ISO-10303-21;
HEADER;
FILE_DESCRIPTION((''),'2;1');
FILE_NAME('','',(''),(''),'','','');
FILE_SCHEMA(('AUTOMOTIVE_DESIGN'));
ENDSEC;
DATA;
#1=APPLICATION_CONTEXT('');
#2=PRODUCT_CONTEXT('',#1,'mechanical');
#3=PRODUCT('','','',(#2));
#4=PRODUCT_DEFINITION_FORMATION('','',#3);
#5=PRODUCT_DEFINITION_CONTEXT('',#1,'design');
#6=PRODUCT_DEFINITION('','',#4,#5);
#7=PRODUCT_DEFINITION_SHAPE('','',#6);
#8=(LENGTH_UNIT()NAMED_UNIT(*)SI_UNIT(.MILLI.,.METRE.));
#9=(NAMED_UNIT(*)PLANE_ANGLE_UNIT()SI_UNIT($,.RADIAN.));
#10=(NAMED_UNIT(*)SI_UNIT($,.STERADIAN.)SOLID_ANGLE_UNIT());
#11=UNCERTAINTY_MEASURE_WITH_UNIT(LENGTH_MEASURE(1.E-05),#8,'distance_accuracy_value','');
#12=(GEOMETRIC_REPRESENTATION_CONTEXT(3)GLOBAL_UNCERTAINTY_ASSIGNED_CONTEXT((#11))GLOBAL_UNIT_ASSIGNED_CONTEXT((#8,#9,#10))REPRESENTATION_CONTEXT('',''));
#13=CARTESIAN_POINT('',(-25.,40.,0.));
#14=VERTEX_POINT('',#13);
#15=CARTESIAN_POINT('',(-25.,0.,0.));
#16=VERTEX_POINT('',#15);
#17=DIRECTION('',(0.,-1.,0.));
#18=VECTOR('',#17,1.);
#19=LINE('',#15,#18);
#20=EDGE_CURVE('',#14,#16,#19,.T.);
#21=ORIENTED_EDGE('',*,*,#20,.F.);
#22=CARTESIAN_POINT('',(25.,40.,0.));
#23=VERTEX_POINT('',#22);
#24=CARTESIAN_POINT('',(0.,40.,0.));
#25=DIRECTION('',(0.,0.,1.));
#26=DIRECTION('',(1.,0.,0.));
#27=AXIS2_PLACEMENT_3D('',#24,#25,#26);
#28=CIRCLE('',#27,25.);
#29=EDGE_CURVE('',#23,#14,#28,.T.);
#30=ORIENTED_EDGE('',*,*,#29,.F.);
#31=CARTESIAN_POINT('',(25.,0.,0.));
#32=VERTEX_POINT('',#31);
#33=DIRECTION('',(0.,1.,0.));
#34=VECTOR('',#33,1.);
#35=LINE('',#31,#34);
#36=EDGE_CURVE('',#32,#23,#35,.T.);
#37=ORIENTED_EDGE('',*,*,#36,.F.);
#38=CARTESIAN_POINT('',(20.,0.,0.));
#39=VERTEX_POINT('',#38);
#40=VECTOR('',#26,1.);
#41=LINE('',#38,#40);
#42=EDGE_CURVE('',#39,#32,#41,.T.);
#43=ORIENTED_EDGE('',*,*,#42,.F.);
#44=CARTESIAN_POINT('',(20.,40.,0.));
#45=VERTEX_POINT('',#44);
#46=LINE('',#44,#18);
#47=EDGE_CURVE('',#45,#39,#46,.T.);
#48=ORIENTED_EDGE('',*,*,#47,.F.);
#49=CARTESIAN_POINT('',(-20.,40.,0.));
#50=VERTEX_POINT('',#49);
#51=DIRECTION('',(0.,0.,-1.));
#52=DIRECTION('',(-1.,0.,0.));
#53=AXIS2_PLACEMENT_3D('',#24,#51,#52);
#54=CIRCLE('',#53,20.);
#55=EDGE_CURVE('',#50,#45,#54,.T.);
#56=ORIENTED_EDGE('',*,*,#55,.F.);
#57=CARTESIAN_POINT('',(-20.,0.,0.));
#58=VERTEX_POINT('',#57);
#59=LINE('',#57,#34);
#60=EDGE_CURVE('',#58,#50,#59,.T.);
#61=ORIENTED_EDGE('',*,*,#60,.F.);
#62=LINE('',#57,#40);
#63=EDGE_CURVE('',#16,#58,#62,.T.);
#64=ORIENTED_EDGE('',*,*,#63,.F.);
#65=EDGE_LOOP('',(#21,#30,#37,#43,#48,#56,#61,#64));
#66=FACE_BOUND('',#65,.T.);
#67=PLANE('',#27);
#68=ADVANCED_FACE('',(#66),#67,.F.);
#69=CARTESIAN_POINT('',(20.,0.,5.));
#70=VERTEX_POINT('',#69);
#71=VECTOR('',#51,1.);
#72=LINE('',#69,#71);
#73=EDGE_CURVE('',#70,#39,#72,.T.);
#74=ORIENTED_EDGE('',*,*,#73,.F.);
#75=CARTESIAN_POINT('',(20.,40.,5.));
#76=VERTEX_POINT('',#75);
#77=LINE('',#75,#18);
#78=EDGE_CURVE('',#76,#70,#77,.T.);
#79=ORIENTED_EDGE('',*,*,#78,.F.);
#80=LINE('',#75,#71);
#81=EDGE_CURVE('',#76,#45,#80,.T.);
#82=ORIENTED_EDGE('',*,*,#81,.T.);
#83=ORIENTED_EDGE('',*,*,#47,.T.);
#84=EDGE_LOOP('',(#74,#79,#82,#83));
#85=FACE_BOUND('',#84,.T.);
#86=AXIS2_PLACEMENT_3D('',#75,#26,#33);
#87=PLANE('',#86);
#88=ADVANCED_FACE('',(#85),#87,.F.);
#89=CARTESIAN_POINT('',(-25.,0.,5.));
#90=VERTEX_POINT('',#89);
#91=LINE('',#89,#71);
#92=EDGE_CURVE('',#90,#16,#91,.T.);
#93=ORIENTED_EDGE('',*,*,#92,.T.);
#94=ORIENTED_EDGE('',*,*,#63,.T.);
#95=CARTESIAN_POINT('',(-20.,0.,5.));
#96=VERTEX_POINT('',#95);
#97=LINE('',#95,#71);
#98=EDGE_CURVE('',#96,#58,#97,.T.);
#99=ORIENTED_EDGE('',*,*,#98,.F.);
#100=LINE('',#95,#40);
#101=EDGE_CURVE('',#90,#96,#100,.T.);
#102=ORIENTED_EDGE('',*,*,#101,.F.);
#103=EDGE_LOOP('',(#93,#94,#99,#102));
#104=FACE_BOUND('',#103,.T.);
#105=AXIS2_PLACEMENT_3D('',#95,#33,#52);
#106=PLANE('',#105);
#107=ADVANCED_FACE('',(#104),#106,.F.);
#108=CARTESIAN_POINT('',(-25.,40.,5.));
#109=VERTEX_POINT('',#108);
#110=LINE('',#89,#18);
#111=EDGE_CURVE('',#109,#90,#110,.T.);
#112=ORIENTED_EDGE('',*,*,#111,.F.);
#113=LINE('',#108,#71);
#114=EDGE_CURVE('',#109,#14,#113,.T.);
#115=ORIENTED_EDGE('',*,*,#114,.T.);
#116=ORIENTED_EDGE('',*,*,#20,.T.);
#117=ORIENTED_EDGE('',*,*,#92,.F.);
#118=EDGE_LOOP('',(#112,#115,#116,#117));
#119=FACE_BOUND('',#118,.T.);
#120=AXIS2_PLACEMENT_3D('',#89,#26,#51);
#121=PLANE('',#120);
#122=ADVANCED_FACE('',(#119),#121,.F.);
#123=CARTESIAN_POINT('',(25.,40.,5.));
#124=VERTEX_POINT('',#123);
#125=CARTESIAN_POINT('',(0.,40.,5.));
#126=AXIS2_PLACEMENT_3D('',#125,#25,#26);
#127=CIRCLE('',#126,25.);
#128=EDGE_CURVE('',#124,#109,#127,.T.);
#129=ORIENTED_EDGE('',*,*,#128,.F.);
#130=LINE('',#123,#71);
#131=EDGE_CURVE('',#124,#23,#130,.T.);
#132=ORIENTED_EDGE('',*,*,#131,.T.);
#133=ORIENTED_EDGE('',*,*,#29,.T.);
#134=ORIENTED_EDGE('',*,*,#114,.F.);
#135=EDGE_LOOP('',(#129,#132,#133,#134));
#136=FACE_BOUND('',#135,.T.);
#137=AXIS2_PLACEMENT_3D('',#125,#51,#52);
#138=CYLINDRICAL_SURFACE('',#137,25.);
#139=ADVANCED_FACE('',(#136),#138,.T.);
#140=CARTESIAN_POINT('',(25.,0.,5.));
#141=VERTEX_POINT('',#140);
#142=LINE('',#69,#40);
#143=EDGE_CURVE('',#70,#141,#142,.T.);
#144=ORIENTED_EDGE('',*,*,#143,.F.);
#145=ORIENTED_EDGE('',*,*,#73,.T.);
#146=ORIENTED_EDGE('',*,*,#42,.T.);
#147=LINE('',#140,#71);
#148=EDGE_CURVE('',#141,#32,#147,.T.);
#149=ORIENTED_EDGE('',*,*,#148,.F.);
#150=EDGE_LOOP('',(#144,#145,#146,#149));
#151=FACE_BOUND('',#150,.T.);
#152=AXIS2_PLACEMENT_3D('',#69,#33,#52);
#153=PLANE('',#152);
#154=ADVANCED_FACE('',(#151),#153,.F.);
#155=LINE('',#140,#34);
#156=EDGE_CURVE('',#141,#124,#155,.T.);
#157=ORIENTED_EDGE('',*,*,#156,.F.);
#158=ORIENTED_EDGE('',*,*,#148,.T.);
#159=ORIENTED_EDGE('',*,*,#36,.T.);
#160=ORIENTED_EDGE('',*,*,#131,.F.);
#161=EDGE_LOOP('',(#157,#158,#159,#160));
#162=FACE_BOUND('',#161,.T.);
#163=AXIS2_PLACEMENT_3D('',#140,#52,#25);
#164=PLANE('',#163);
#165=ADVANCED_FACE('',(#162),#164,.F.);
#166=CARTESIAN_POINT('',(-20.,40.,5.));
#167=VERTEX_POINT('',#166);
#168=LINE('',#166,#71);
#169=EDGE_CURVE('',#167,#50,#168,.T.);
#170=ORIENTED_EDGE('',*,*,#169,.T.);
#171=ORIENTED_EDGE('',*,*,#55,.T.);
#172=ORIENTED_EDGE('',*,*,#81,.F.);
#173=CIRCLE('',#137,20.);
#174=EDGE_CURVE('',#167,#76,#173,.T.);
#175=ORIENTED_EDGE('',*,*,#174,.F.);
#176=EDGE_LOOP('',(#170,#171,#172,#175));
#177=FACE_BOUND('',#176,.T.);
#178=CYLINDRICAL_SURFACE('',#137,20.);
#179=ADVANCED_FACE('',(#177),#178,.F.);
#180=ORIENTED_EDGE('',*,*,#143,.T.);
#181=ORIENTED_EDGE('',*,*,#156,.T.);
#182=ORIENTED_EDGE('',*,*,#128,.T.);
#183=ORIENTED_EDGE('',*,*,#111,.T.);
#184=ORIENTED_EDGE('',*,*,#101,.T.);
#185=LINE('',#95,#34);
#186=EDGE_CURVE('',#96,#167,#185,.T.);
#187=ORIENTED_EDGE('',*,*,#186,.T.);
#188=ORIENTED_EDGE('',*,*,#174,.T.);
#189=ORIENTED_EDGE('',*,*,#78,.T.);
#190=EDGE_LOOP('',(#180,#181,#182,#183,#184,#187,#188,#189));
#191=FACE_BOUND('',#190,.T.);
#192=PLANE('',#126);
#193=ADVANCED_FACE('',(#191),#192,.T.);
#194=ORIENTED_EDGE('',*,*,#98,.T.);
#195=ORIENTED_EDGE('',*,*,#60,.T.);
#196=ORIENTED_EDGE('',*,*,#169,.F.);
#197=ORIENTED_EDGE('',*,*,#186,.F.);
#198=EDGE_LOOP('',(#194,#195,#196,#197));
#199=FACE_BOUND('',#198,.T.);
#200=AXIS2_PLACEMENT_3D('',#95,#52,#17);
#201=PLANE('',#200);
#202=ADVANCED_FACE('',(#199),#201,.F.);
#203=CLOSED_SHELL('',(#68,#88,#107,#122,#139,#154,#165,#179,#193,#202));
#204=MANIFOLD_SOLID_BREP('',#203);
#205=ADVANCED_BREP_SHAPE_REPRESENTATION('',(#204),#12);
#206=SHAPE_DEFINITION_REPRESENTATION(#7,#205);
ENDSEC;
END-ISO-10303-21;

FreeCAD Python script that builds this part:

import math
import FreeCAD as App
import Part
import Sketcher

V = App.Vector
Q = App.Units.Quantity

doc = App.newDocument("Part")
body = doc.addObject("PartDesign::Body", "Body")

sketch1 = body.newObject("Sketcher::SketchObject", "Sketch")
sketch1.AttachmentSupport = (doc.getObject("XY_Plane"), [""])
sketch1.MapMode = "FlatFace"
sketch1.addGeometry(Part.LineSegment(V(-20, 0, 0), V(-20, 40, 0)), False)
sketch1.addGeometry(Part.ArcOfCircle(Part.Circle(V(0, 40, 0), V(0, 0, 1), 20), math.radians(0), math.radians(180)), False)
sketch1.addGeometry(Part.LineSegment(V(20, 40, 0), V(20, 0, 0)), False)
sketch1.addGeometry(Part.LineSegment(V(20, 0, 0), V(25, 0, 0)), False)
sketch1.addGeometry(Part.LineSegment(V(25, 0, 0), V(25, 40, 0)), False)
sketch1.addGeometry(Part.ArcOfCircle(Part.Circle(V(0, 40, 0), V(0, 0, 1), 25), math.radians(0), math.radians(180)), False)
sketch1.addGeometry(Part.LineSegment(V(-25, 40, 0), V(-25, 0, 0)), False)
sketch1.addGeometry(Part.LineSegment(V(-25, 0, 0), V(-20, 0, 0)), False)
sketch1.addConstraint(Sketcher.Constraint("Tangent", 0, 2, 1, 2))
sketch1.addConstraint(Sketcher.Constraint("Tangent", 1, 1, 2, 1))
sketch1.addConstraint(Sketcher.Constraint("Coincident", 2, 2, 3, 1))
sketch1.addConstraint(Sketcher.Constraint("Coincident", 3, 2, 4, 1))
sketch1.addConstraint(Sketcher.Constraint("Tangent", 4, 2, 5, 1))
sketch1.addConstraint(Sketcher.Constraint("Tangent", 5, 2, 6, 1))
sketch1.addConstraint(Sketcher.Constraint("Coincident", 6, 2, 7, 1))
sketch1.addConstraint(Sketcher.Constraint("Coincident", 7, 2, 0, 1))
sketch1.addConstraint(Sketcher.Constraint("Vertical", 0))
sketch1.addConstraint(Sketcher.Constraint("Vertical", 2))
sketch1.addConstraint(Sketcher.Constraint("Horizontal", 3))
sketch1.addConstraint(Sketcher.Constraint("Vertical", 4))
sketch1.addConstraint(Sketcher.Constraint("Vertical", 6))
sketch1.addConstraint(Sketcher.Constraint("Horizontal", 7))
sketch1.addConstraint(Sketcher.Constraint("Coincident", 5, 3, 1, 3))
sketch1.addConstraint(Sketcher.Constraint("Symmetric", 3, 2, 6, 2, -1, 1))
sketch1.addConstraint(Sketcher.Constraint("PointOnObject", 2, 2, -1))
sketch1.addConstraint(Sketcher.Constraint("Radius", 1, Q("20 mm")))
sketch1.addConstraint(Sketcher.Constraint("Radius", 5, Q("25 mm")))
sketch1.addConstraint(Sketcher.Constraint("DistanceY", 0, 1, 0, 2, Q("40 mm")))
pad1 = body.newObject("PartDesign::Pad", "Pad")
pad1.Profile = sketch1
pad1.Length = 5

doc.recompute()
